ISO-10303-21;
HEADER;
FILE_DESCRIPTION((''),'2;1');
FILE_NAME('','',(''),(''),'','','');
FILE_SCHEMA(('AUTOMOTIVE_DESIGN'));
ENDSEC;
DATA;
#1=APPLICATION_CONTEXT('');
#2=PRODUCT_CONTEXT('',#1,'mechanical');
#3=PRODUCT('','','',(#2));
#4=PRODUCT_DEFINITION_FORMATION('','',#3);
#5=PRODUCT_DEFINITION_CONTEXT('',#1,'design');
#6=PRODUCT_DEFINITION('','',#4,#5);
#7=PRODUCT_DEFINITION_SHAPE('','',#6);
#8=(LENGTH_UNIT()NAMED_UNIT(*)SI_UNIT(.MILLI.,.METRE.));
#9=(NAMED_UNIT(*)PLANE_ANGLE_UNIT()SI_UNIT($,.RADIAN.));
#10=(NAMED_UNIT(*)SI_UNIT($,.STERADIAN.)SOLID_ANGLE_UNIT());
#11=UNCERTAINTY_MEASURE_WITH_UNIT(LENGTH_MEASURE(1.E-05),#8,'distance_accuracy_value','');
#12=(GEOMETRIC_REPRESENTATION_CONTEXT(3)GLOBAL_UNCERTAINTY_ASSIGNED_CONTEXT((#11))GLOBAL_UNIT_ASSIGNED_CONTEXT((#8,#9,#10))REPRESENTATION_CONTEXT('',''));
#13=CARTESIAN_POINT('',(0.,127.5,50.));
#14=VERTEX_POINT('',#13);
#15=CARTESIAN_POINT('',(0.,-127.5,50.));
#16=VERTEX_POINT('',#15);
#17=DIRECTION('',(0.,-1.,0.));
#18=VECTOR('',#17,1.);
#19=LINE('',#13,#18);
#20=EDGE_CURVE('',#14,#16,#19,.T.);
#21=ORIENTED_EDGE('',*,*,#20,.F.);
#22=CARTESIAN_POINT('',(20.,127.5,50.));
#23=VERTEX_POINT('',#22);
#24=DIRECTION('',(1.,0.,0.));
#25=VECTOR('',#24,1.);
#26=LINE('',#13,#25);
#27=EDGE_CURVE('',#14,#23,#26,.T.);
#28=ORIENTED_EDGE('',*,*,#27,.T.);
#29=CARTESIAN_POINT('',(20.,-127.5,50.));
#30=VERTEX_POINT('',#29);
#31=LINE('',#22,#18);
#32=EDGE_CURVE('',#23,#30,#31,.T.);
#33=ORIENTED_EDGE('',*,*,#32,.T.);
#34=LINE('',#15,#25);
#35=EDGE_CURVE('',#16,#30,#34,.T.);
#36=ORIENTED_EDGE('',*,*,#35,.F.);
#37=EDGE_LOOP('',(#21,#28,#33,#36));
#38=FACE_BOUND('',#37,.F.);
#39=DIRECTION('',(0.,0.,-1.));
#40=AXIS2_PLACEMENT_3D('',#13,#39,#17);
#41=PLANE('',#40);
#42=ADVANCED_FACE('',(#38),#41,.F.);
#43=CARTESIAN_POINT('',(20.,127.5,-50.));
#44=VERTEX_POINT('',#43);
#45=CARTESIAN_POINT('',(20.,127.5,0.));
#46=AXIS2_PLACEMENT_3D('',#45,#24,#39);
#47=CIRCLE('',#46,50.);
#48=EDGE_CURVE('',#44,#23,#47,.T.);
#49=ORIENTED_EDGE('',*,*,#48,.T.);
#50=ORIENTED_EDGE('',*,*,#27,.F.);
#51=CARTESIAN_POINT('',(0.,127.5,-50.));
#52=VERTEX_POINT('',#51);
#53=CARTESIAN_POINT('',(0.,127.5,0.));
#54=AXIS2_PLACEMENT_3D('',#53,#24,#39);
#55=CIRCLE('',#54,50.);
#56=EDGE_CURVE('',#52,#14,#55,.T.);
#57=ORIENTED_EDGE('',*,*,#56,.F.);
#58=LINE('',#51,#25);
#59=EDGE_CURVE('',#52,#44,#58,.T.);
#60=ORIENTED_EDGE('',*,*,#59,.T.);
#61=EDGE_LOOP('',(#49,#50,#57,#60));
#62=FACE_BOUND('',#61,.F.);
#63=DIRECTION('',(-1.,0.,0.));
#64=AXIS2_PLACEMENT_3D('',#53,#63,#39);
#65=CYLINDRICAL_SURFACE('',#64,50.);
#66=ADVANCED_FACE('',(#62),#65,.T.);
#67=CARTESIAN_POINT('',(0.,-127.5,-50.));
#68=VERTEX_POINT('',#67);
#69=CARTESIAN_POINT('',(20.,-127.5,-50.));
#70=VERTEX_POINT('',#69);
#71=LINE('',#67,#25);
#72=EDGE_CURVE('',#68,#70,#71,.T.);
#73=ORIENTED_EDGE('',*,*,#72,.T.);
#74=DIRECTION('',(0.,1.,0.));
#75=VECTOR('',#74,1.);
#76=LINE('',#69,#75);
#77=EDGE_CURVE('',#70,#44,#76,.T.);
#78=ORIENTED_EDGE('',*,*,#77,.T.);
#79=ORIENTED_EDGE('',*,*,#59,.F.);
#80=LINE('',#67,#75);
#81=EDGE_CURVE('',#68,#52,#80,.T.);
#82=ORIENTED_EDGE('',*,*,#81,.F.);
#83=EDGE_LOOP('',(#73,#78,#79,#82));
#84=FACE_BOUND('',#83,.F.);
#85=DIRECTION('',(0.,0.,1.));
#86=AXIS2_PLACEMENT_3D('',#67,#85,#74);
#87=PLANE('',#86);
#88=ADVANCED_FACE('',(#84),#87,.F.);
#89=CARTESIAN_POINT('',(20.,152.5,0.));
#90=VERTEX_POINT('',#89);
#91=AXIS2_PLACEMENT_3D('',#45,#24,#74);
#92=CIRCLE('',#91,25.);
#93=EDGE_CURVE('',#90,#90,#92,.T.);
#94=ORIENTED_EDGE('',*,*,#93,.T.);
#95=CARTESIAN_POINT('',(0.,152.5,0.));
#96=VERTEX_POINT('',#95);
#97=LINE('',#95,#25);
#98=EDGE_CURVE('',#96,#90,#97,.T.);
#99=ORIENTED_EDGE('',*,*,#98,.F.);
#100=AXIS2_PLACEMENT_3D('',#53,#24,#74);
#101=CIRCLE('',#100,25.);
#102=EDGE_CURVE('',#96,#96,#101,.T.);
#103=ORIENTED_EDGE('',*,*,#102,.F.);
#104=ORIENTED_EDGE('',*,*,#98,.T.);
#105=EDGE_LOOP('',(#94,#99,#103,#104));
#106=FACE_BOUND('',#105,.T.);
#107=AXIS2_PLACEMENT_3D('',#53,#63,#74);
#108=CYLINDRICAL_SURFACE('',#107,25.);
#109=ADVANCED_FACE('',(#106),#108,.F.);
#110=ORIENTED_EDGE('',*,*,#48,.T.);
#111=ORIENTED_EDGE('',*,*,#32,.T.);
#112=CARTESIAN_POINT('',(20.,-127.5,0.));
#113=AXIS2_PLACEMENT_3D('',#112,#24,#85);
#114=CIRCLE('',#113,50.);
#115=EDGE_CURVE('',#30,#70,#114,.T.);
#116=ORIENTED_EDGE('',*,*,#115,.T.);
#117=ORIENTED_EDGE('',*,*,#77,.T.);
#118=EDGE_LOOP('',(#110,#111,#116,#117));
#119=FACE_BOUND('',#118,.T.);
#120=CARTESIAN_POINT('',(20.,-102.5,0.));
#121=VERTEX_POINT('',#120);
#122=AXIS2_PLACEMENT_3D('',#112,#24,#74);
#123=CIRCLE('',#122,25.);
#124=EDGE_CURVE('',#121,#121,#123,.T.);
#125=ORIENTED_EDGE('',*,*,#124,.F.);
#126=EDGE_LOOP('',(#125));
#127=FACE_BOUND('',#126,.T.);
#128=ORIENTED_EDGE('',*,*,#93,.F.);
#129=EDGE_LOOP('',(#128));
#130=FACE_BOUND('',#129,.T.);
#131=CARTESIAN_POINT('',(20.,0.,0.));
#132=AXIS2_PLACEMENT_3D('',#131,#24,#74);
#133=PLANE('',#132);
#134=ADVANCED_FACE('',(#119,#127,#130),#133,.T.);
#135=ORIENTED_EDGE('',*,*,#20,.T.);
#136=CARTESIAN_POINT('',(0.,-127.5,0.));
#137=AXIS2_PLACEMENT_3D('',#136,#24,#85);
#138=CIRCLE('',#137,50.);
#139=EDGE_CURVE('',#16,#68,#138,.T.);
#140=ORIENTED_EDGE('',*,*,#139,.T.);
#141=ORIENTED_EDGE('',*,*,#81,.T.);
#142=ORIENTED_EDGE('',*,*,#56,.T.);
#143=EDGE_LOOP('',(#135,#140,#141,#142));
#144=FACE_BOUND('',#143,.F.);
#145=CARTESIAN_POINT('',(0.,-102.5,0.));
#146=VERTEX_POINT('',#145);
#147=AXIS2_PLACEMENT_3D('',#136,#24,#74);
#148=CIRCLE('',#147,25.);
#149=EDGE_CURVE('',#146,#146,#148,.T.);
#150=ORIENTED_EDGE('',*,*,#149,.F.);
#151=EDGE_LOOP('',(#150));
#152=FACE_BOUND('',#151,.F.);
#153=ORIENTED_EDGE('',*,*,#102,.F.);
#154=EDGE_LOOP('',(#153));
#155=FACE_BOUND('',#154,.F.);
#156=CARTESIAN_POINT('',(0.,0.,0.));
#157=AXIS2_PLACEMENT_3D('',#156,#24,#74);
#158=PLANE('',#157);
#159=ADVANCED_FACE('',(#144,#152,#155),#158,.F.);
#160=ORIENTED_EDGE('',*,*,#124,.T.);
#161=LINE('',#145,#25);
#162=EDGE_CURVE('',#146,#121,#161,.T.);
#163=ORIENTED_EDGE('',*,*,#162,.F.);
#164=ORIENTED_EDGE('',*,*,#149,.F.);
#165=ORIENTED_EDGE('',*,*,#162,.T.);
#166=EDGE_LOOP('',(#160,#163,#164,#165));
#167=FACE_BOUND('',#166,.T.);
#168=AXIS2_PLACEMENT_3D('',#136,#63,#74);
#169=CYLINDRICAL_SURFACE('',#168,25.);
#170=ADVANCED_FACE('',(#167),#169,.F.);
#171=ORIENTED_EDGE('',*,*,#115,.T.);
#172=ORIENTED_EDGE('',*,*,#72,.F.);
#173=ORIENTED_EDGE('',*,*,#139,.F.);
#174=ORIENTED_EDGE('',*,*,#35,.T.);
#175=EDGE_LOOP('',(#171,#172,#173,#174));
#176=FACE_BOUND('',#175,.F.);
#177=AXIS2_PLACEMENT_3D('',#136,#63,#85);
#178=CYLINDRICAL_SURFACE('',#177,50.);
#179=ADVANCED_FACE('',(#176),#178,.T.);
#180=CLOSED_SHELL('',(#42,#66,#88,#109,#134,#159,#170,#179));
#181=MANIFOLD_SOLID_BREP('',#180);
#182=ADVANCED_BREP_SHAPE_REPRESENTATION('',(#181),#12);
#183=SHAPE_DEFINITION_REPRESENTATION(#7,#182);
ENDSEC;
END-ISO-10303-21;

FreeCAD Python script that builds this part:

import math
import FreeCAD as App
import Part
import Sketcher

doc = App.newDocument("Part")
params = doc.addObject("Spreadsheet::Sheet", "Params")
for row, (alias, value) in enumerate([
    ("sketch1_diameter", "50 mm"),
    ("sketch1_radius", "50 mm"),
    ("pad1_length", "20 mm"),
], start=1):
    params.set(f"A{row}", alias)
    params.set(f"B{row}", "=" + value)
    params.setAlias(f"B{row}", alias)

body = doc.addObject("PartDesign::Body", "Body")

sketch1 = body.newObject("Sketcher::SketchObject", "Sketch")
sketch1.AttachmentSupport = (doc.getObject("YZ_Plane"), [""])
sketch1.MapMode = "FlatFace"
sketch1.addGeometry([
    Part.ArcOfCircle(Part.Circle(App.Vector(-128, 0, 0), App.Vector(0, 0, 1), 50), math.radians(90), math.radians(270)),
    Part.LineSegment(App.Vector(-128, -50, 0), App.Vector(128, -50, 0)),
    Part.ArcOfCircle(Part.Circle(App.Vector(128, 0, 0), App.Vector(0, 0, 1), 50), math.radians(-90), math.radians(90)),
    Part.LineSegment(App.Vector(128, 50, 0), App.Vector(-128, 50, 0)),
    Part.Circle(App.Vector(-128, 0, 0), App.Vector(0, 0, 1), 25),
    Part.Circle(App.Vector(128, 0, 0), App.Vector(0, 0, 1), 25),
], False)
sketch1.addConstraint([
    Sketcher.Constraint("Tangent", 0, 2, 1, 1),
    Sketcher.Constraint("Tangent", 1, 2, 2, 1),
    Sketcher.Constraint("Tangent", 2, 2, 3, 1),
    Sketcher.Constraint("Tangent", 3, 2, 0, 1),
    Sketcher.Constraint("Horizontal", 1),
    Sketcher.Constraint("Horizontal", 3),
    Sketcher.Constraint("Coincident", 4, 3, 0, 3),
    Sketcher.Constraint("Coincident", 5, 3, 2, 3),
    Sketcher.Constraint("Equal", 4, 5),
    Sketcher.Constraint("Symmetric", 0, 3, 2, 3, -1, 1),
    Sketcher.Constraint("Diameter", 4, 50.0),
    Sketcher.Constraint("Radius", 0, 50.0),
    Sketcher.Constraint("DistanceX", 0, 3, -1, 1, 127.5),
])
sketch1.setExpression("Constraints[10]", "Params.sketch1_diameter")
sketch1.setExpression("Constraints[11]", "Params.sketch1_radius")
pad1 = body.newObject("PartDesign::Pad", "Pad")
pad1.Profile = sketch1
pad1.setExpression("Length", "Params.pad1_length")

doc.recompute()
